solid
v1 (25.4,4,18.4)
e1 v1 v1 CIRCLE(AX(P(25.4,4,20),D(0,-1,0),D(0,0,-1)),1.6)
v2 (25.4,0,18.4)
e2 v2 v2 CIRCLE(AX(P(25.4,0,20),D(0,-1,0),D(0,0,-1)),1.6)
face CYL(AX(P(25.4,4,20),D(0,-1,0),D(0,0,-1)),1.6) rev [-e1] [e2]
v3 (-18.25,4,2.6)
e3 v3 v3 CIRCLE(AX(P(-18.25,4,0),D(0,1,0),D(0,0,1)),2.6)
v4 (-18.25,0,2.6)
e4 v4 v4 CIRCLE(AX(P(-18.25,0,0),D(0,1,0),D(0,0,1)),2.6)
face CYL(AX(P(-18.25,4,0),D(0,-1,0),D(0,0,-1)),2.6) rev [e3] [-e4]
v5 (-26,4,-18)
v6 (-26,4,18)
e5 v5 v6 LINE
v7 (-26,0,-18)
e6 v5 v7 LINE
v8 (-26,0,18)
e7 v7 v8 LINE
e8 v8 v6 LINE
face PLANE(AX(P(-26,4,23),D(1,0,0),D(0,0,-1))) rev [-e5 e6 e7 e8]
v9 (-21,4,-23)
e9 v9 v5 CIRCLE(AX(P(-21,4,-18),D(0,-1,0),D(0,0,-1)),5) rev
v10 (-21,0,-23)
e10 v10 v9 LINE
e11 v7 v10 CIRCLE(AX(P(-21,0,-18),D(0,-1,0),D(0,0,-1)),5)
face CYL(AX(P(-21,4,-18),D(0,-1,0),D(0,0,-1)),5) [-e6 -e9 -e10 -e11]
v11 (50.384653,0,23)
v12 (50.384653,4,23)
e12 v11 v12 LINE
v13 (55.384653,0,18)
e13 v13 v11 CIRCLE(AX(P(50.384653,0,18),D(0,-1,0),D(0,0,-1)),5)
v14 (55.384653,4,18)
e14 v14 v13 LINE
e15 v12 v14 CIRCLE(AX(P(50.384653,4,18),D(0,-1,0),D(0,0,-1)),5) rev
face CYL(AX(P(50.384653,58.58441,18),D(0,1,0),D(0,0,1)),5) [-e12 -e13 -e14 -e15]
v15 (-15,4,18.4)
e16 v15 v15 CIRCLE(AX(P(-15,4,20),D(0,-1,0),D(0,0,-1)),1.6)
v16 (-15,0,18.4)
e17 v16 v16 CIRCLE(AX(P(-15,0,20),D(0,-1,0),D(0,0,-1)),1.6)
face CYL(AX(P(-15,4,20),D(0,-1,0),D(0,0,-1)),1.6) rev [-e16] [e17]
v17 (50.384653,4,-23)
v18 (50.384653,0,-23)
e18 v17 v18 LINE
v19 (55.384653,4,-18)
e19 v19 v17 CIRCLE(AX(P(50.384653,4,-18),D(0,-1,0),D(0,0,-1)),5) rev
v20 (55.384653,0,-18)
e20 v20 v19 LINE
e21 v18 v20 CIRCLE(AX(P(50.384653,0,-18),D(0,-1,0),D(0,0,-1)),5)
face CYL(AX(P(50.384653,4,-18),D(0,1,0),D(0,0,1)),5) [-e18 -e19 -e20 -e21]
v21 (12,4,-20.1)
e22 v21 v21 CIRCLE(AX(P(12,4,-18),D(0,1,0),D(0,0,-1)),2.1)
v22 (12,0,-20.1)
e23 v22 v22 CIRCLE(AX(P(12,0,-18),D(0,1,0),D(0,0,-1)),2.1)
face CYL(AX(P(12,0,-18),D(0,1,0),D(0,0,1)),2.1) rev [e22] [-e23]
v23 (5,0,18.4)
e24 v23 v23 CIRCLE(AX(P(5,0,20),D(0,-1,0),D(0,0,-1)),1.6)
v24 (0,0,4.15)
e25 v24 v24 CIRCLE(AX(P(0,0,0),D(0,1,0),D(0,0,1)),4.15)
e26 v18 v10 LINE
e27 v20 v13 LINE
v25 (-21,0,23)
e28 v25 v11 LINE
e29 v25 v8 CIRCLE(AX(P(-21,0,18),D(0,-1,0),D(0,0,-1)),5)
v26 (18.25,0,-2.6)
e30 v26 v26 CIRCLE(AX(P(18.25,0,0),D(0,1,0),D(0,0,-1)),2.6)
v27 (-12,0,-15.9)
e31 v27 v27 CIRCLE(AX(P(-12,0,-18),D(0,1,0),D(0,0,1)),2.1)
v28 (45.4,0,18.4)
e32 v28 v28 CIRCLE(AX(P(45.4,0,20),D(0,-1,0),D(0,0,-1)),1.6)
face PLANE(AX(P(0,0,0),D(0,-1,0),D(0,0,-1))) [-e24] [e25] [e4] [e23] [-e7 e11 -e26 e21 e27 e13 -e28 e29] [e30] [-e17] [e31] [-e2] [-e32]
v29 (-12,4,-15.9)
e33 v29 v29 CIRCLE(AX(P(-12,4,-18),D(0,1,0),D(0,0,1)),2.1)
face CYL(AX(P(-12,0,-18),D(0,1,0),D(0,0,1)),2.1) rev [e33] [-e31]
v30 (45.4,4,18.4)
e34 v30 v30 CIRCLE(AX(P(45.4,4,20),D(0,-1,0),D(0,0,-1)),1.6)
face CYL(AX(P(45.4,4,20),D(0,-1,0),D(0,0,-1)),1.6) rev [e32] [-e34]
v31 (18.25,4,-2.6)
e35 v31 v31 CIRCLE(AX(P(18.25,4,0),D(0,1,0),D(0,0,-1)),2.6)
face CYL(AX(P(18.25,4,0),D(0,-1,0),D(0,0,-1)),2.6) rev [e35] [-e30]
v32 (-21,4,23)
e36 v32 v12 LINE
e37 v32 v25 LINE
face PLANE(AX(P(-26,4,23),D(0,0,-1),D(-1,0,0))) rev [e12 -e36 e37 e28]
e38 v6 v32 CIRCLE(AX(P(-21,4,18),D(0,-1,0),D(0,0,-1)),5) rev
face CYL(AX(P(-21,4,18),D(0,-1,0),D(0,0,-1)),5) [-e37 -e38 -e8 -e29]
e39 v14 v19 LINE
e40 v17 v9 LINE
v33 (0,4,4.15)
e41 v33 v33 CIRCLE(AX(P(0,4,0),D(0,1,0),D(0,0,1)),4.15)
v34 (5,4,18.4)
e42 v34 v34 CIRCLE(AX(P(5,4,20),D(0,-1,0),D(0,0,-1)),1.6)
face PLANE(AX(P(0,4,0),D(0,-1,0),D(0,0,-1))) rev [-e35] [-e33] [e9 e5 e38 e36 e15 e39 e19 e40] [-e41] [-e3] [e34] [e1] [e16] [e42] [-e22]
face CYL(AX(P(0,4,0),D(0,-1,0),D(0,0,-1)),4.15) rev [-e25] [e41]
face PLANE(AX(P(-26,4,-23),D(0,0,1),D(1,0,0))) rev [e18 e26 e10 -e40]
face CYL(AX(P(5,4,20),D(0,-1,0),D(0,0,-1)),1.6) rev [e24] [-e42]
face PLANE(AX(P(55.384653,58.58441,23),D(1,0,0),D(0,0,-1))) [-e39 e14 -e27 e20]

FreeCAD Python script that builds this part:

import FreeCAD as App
import Part
import Sketcher

V = App.Vector


def edges_at(feature, points):
    """Names of the edges that pass closest to the given points."""
    edges = feature.Shape.Edges
    near = lambda p: min(range(len(edges)), key=lambda i: edges[i].distToShape(Part.Vertex(*p))[0])
    return sorted({f"Edge{near(p) + 1}" for p in points})

doc = App.newDocument("Part")
body = doc.addObject("PartDesign::Body", "Body")

sketch1 = body.newObject("Sketcher::SketchObject", "Sketch")
sketch1.AttachmentSupport = (doc.getObject("XZ_Plane"), [""])
sketch1.MapMode = "FlatFace"
sketch1.addGeometry(Part.LineSegment(V(-26, -23, 0), V(-26, 23, 0)), False)
sketch1.addGeometry(Part.LineSegment(V(-26, 23, 0), V(26, 23, 0)), False)
sketch1.addGeometry(Part.LineSegment(V(26, 23, 0), V(26, -23, 0)), False)
sketch1.addGeometry(Part.LineSegment(V(26, -23, 0), V(-26, -23, 0)), False)
sketch1.addGeometry(Part.Circle(V(-18.2, 0, 0), V(0, 0, 1), 2.6), False)
sketch1.addGeometry(Part.Circle(V(0, 0, 0), V(0, 0, 1), 4.2), False)
sketch1.addGeometry(Part.Circle(V(18.2, 0, 0), V(0, 0, 1), 2.6), False)
sketch1.addConstraint(Sketcher.Constraint("Coincident", 0, 2, 1, 1))
sketch1.addConstraint(Sketcher.Constraint("Coincident", 1, 2, 2, 1))
sketch1.addConstraint(Sketcher.Constraint("Coincident", 2, 2, 3, 1))
sketch1.addConstraint(Sketcher.Constraint("Coincident", 3, 2, 0, 1))
sketch1.addConstraint(Sketcher.Constraint("Vertical", 0))
sketch1.addConstraint(Sketcher.Constraint("Horizontal", 1))
sketch1.addConstraint(Sketcher.Constraint("Vertical", 2))
sketch1.addConstraint(Sketcher.Constraint("Horizontal", 3))
sketch1.addConstraint(Sketcher.Constraint("Coincident", 5, 3, -1, 1))
sketch1.addConstraint(Sketcher.Constraint("Equal", 4, 6))
sketch1.addConstraint(Sketcher.Constraint("Symmetric", 4, 3, 6, 3, -1, 1))
sketch1.addConstraint(Sketcher.Constraint("Symmetric", 0, 2, 2, 2, -1, 1))
sketch1.addConstraint(Sketcher.Constraint("PointOnObject", 4, 3, -1))
sketch1.addConstraint(Sketcher.Constraint("Diameter", 4, 5.2))
sketch1.addConstraint(Sketcher.Constraint("Diameter", 5, 8.3))
sketch1.addConstraint(Sketcher.Constraint("DistanceX", 1, 1, 1, 2, 52.0))
sketch1.addConstraint(Sketcher.Constraint("DistanceY", 0, 1, 0, 2, 46.0))
sketch1.addConstraint(Sketcher.Constraint("DistanceX", 4, 3, 6, 3, 36.5))
pad1 = body.newObject("PartDesign::Pad", "Pad")
pad1.Profile = sketch1
pad1.Length = 4
pad1.Reversed = True

sketch2 = body.newObject("Sketcher::SketchObject", "Sketch001")
sketch2.AttachmentSupport = (doc.getObject("XZ_Plane"), [""])
sketch2.MapMode = "FlatFace"
sketch2.AttachmentOffset = App.Placement(V(0, 0, -4), App.Rotation())
sketch2.addGeometry(Part.Circle(V(-12, -18, 0), V(0, 0, 1), 2.1), False)
sketch2.addGeometry(Part.Circle(V(12, -18, 0), V(0, 0, 1), 2.1), False)
sketch2.addGeometry(Part.Circle(V(12, 18, 0), V(0, 0, 1), 2.1), False)
sketch2.addGeometry(Part.Circle(V(-12, 18, 0), V(0, 0, 1), 2.1), False)
sketch2.addConstraint(Sketcher.Constraint("Equal", 0, 1))
sketch2.addConstraint(Sketcher.Constraint("Equal", 1, 2))
sketch2.addConstraint(Sketcher.Constraint("Equal", 2, 3))
sketch2.addConstraint(Sketcher.Constraint("Symmetric", 0, 3, 2, 3, -1, 1))
sketch2.addConstraint(Sketcher.Constraint("Symmetric", 1, 3, 3, 3, -1, 1))
sketch2.addConstraint(Sketcher.Constraint("Symmetric", 0, 3, 1, 3, -2))
sketch2.addConstraint(Sketcher.Constraint("Diameter", 0, 4.2))
sketch2.addConstraint(Sketcher.Constraint("DistanceX", 0, 3, -1, 1, 12.0))
sketch2.addConstraint(Sketcher.Constraint("DistanceY", 0, 3, -1, 1, 18.0))
pocket1 = body.newObject("PartDesign::Pocket", "Pocket")
pocket1.Profile = sketch2
pocket1.Type = "ThroughAll"
pocket1.Reversed = True

sketch3 = body.newObject("Sketcher::SketchObject", "Sketch002")
sketch3.AttachmentSupport = (doc.getObject("XZ_Plane"), [""])
sketch3.MapMode = "FlatFace"
sketch3.AttachmentOffset = App.Placement(V(0, 0, -4), App.Rotation())
sketch3.addGeometry(Part.Circle(V(-12, 18, 0), V(0, 0, 1), 2.1), False)
sketch3.addGeometry(Part.Circle(V(12, 18, 0), V(0, 0, 1), 2.1), False)
sketch3.addConstraint(Sketcher.Constraint("Equal", 0, 1))
sketch3.addConstraint(Sketcher.Constraint("Symmetric", 0, 3, 1, 3, -2))
sketch3.addConstraint(Sketcher.Constraint("Diameter", 0, 4.2))
sketch3.addConstraint(Sketcher.Constraint("DistanceX", 0, 3, -1, 1, 12.0))
sketch3.addConstraint(Sketcher.Constraint("DistanceY", -1, 1, 0, 3, 18.0))
pad2 = body.newObject("PartDesign::Pad", "Pad001")
pad2.Profile = sketch3
pad2.Length = 4

sketch4 = body.newObject("Sketcher::SketchObject", "Sketch003")
sketch4.AttachmentSupport = (doc.getObject("XZ_Plane"), [""])
sketch4.MapMode = "FlatFace"
sketch4.AttachmentOffset = App.Placement(V(0, 0, -4), App.Rotation())
sketch4.addGeometry(Part.Circle(V(5, 20, 0), V(0, 0, 1), 1.2), False)
sketch4.addGeometry(Part.Circle(V(-15, 20, 0), V(0, 0, 1), 1.2), False)
sketch4.addConstraint(Sketcher.Constraint("Equal", 0, 1))
sketch4.addConstraint(Sketcher.Constraint("Horizontal", 0, 3, 1, 3))
sketch4.addConstraint(Sketcher.Constraint("Diameter", 0, 2.4))
sketch4.addConstraint(Sketcher.Constraint("DistanceX", -1, 1, 0, 3, 5.0))
sketch4.addConstraint(Sketcher.Constraint("DistanceY", -1, 1, 0, 3, 20.0))
sketch4.addConstraint(Sketcher.Constraint("DistanceX", 1, 3, -1, 1, 15.0))
pocket2 = body.newObject("PartDesign::Pocket", "Pocket001")
pocket2.Profile = sketch4
pocket2.Type = "ThroughAll"
pocket2.Reversed = True

sketch5 = body.newObject("Sketcher::SketchObject", "Sketch004")
sketch5.AttachmentSupport = (doc.getObject("XZ_Plane"), [""])
sketch5.MapMode = "FlatFace"
sketch5.addGeometry(Part.LineSegment(V(26, 23, 0), V(26, -23, 0)), False)
sketch5.addGeometry(Part.LineSegment(V(26, -23, 0), V(55, -23, 0)), False)
sketch5.addGeometry(Part.LineSegment(V(55, -23, 0), V(55, 23, 0)), False)
sketch5.addGeometry(Part.LineSegment(V(55, 23, 0), V(26, 23, 0)), False)
sketch5.addConstraint(Sketcher.Constraint("Coincident", 0, 2, 1, 1))
sketch5.addConstraint(Sketcher.Constraint("Coincident", 1, 2, 2, 1))
sketch5.addConstraint(Sketcher.Constraint("Coincident", 2, 2, 3, 1))
sketch5.addConstraint(Sketcher.Constraint("Coincident", 3, 2, 0, 1))
sketch5.addConstraint(Sketcher.Constraint("Vertical", 0))
sketch5.addConstraint(Sketcher.Constraint("Horizontal", 1))
sketch5.addConstraint(Sketcher.Constraint("Vertical", 2))
sketch5.addConstraint(Sketcher.Constraint("Horizontal", 3))
sketch5.addConstraint(Sketcher.Constraint("DistanceY", 0, 2, 0, 1, 46.0))
sketch5.addConstraint(Sketcher.Constraint("DistanceX", -1, 1, 0, 2, 26.0))
sketch5.addConstraint(Sketcher.Constraint("DistanceY", 0, 2, -1, 1, 23.0))
sketch5.addConstraint(Sketcher.Constraint("DistanceX", 1, 1, 1, 2, 29.384653))
pad3 = body.newObject("PartDesign::Pad", "Pad002")
pad3.Profile = sketch5
pad3.Length = 4
pad3.Reversed = True
doc.recompute()

fillet = body.newObject("PartDesign::Fillet", "Fillet")
fillet.Base = (pad3, edges_at(pad3, [
    (55.385, 2, 23),
    (55.385, 2, -23),
    (-26, 2, 23),
    (-26, 2, -23),
]))
fillet.Radius = 5

sketch6 = body.newObject("Sketcher::SketchObject", "Sketch005")
sketch6.AttachmentSupport = (doc.getObject("XZ_Plane"), [""])
sketch6.MapMode = "FlatFace"
sketch6.addGeometry(Part.Circle(V(-15, 20, 0), V(0, 0, 1), 1.6), False)
sketch6.addGeometry(Part.Circle(V(5, 20, 0), V(0, 0, 1), 1.6), False)
sketch6.addGeometry(Part.Circle(V(25.4, 20, 0), V(0, 0, 1), 1.6), False)
sketch6.addGeometry(Part.Circle(V(45.4, 20, 0), V(0, 0, 1), 1.6), False)
sketch6.addConstraint(Sketcher.Constraint("Equal", 0, 1))
sketch6.addConstraint(Sketcher.Constraint("Equal", 1, 2))
sketch6.addConstraint(Sketcher.Constraint("Equal", 2, 3))
sketch6.addConstraint(Sketcher.Constraint("Horizontal", 0, 3, 1, 3))
sketch6.addConstraint(Sketcher.Constraint("Horizontal", 1, 3, 2, 3))
sketch6.addConstraint(Sketcher.Constraint("Horizontal", 2, 3, 3, 3))
sketch6.addConstraint(Sketcher.Constraint("Diameter", 0, 3.2))
sketch6.addConstraint(Sketcher.Constraint("DistanceX", 0, 3, -1, 1, 15.0))
sketch6.addConstraint(Sketcher.Constraint("DistanceY", -1, 1, 0, 3, 20.0))
sketch6.addConstraint(Sketcher.Constraint("DistanceX", -1, 1, 1, 3, 5.0))
sketch6.addConstraint(Sketcher.Constraint("DistanceX", 2, 3, 3, 3, 20.0))
sketch6.addConstraint(Sketcher.Constraint("DistanceX", -1, 1, 2, 3, 25.4))
pocket3 = body.newObject("PartDesign::Pocket", "Pocket002")
pocket3.Profile = sketch6
pocket3.Type = "ThroughAll"

doc.recompute()
